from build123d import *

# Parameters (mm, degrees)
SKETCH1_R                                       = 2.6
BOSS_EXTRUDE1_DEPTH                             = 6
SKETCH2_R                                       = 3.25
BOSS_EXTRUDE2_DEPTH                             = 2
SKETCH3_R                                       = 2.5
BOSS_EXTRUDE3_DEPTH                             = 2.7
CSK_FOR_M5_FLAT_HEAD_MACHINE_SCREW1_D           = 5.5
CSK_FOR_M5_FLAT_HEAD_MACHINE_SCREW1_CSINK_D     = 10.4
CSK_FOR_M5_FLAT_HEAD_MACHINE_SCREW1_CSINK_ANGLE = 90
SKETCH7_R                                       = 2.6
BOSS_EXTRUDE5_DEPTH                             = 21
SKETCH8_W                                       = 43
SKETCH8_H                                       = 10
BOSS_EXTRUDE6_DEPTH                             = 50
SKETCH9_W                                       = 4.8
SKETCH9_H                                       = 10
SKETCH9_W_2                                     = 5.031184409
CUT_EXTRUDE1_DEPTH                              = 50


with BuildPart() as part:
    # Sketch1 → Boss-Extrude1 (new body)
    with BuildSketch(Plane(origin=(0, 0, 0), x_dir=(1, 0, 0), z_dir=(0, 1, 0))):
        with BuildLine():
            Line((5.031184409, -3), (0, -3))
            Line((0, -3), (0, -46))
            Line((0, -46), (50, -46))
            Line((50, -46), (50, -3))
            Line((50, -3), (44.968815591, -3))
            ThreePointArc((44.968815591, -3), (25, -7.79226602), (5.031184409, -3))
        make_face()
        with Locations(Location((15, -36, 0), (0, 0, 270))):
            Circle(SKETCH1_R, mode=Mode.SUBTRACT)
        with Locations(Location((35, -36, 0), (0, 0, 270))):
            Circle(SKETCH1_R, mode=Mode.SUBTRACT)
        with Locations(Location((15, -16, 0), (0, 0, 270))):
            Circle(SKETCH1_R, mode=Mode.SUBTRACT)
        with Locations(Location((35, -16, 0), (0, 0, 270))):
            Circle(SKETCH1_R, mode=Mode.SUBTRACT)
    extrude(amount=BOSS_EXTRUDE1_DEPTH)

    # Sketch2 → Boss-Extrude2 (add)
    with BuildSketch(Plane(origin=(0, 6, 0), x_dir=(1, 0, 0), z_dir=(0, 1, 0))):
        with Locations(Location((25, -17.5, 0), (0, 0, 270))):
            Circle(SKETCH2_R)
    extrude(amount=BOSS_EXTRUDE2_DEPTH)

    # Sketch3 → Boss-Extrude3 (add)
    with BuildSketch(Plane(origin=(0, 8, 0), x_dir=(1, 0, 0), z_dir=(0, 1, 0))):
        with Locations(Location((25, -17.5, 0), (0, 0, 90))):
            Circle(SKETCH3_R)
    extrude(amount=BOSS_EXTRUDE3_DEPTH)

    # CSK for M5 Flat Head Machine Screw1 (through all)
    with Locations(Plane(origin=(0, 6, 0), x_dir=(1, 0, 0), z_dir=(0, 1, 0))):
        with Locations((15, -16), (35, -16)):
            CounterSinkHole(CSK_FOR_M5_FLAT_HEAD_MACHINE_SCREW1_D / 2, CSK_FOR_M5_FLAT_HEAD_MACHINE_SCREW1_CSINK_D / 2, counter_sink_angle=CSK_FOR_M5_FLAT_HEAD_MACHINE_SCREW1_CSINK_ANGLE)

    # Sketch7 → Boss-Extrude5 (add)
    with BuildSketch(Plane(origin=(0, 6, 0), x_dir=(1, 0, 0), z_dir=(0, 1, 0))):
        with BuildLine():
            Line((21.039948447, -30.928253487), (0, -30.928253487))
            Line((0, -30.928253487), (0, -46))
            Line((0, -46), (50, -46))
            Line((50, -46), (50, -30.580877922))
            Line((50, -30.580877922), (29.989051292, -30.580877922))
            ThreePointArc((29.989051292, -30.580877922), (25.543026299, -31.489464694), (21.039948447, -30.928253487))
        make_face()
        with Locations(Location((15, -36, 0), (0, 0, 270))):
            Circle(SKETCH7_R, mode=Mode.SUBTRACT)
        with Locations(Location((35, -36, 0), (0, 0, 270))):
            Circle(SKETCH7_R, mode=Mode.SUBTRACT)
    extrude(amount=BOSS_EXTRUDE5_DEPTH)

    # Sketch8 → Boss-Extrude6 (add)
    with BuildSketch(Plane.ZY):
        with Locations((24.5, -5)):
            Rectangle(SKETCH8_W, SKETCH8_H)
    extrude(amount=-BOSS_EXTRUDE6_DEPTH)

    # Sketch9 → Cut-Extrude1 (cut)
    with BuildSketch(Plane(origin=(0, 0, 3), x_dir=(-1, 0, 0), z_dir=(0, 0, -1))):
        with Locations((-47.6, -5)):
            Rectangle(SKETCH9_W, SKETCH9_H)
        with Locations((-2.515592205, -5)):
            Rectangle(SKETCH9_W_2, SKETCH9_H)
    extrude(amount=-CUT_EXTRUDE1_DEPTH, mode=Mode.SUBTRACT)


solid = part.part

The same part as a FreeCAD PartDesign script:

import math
import FreeCAD as App
import Part
import Sketcher


def add_polygon(sketch, points):
    """Adds a closed chain of lines whose ends are joined by coincident constraints."""
    first, n = sketch.GeometryCount, len(points)
    for a, b in zip(points, points[1:] + points[:1]):
        sketch.addGeometry(Part.LineSegment(App.Vector(*a, 0), App.Vector(*b, 0)), False)
    for i in range(n):
        sketch.addConstraint(Sketcher.Constraint("Coincident", first + i, 2, first + (i + 1) % n, 1))

doc = App.newDocument("Part")
body = doc.addObject("PartDesign::Body", "Body")

# Sketch on XZ plane
sketch1 = body.newObject("Sketcher::SketchObject", "Sketch")
sketch1.AttachmentSupport = (doc.getObject("XZ_Plane"), [""])
sketch1.MapMode = "FlatFace"
sketch1.addGeometry([
    Part.LineSegment(App.Vector(5.031184, 3, 0), App.Vector(0, 3, 0)),  # 0
    Part.LineSegment(App.Vector(0, 3, 0), App.Vector(0, 46, 0)),  # 1
    Part.LineSegment(App.Vector(0, 46, 0), App.Vector(50, 46, 0)),  # 2
    Part.LineSegment(App.Vector(50, 46, 0), App.Vector(50, 3, 0)),  # 3
    Part.LineSegment(App.Vector(50, 3, 0), App.Vector(44.968816, 3, 0)),  # 4
    Part.ArcOfCircle(Part.Circle(App.Vector(25, -36.207734, 0), App.Vector(0, 0, 1), 44), math.radians(63.009888), math.radians(116.990112)),  # 5
    Part.Circle(App.Vector(15, 36, 0), App.Vector(0, 0, 1), 2.6),  # 6
    Part.Circle(App.Vector(35, 36, 0), App.Vector(0, 0, 1), 2.6),  # 7
    Part.Circle(App.Vector(15, 16, 0), App.Vector(0, 0, 1), 2.6),  # 8
    Part.Circle(App.Vector(35, 16, 0), App.Vector(0, 0, 1), 2.6),  # 9
], False)
sketch1.addConstraint([
    Sketcher.Constraint("Coincident", 0, 2, 1, 1),
    Sketcher.Constraint("Coincident", 1, 2, 2, 1),
    Sketcher.Constraint("Coincident", 2, 2, 3, 1),
    Sketcher.Constraint("Coincident", 3, 2, 4, 1),
    Sketcher.Constraint("Coincident", 4, 2, 5, 1),
    Sketcher.Constraint("Coincident", 5, 2, 0, 1),
    Sketcher.Constraint("Horizontal", 0),
    Sketcher.Constraint("Vertical", 1),
    Sketcher.Constraint("Horizontal", 2),
    Sketcher.Constraint("Vertical", 3),
    Sketcher.Constraint("Horizontal", 4),
    Sketcher.Constraint("Equal", 6, 7),
    Sketcher.Constraint("Equal", 7, 8),
    Sketcher.Constraint("Equal", 8, 9),
    Sketcher.Constraint("PointOnObject", 0, 2, -2),
    Sketcher.Constraint("Horizontal", 6, 3, 7, 3),
    Sketcher.Constraint("Horizontal", 8, 3, 9, 3),
    Sketcher.Constraint("Horizontal", 0, 2, 3, 2),
    Sketcher.Constraint("Vertical", 6, 3, 8, 3),
    Sketcher.Constraint("Vertical", 7, 3, 9, 3),
    Sketcher.Constraint("Equal", 0, 4),
    Sketcher.Constraint("Radius", 5, 44.0),
    Sketcher.Constraint("Diameter", 6, 5.2),
    Sketcher.Constraint("DistanceX", 2, 1, 2, 2, 50.0),
    Sketcher.Constraint("DistanceY", 1, 1, 1, 2, 43.0),
    Sketcher.Constraint("DistanceX", -1, 1, 6, 3, 15.0),
    Sketcher.Constraint("DistanceY", -1, 1, 6, 3, 36.0),
    Sketcher.Constraint("DistanceX", -1, 1, 7, 3, 35.0),
    Sketcher.Constraint("DistanceY", -1, 1, 8, 3, 16.0),
    Sketcher.Constraint("DistanceY", -1, 1, 0, 2, 3.0),
    Sketcher.Constraint("DistanceX", 0, 2, 0, 1, 5.031184),
])
pad1 = body.newObject("PartDesign::Pad", "Pad")
pad1.Profile = sketch1
pad1.Length = 6
pad1.Reversed = True

# Sketch on XZ plane
sketch2 = body.newObject("Sketcher::SketchObject", "Sketch001")
sketch2.AttachmentSupport = (doc.getObject("XZ_Plane"), [""])
sketch2.MapMode = "FlatFace"
sketch2.AttachmentOffset = App.Placement(App.Vector(0, 0, -6), App.Rotation())
sketch2.addGeometry(Part.Circle(App.Vector(25, 17.5, 0), App.Vector(0, 0, 1), 3.25), False)
sketch2.addConstraint([
    Sketcher.Constraint("Diameter", 0, 6.5),
    Sketcher.Constraint("DistanceX", -1, 1, 0, 3, 25.0),
    Sketcher.Constraint("DistanceY", -1, 1, 0, 3, 17.5),
])
pad2 = body.newObject("PartDesign::Pad", "Pad001")
pad2.Profile = sketch2
pad2.Length = 2
pad2.Reversed = True

# Sketch on XZ plane
sketch3 = body.newObject("Sketcher::SketchObject", "Sketch002")
sketch3.AttachmentSupport = (doc.getObject("XZ_Plane"), [""])
sketch3.MapMode = "FlatFace"
sketch3.AttachmentOffset = App.Placement(App.Vector(0, 0, -8), App.Rotation())
sketch3.addGeometry(Part.Circle(App.Vector(25, 17.5, 0), App.Vector(0, 0, 1), 2.5), False)
sketch3.addConstraint([
    Sketcher.Constraint("Diameter", 0, 5.0),
    Sketcher.Constraint("DistanceX", -1, 1, 0, 3, 25.0),
    Sketcher.Constraint("DistanceY", -1, 1, 0, 3, 17.5),
])
pad3 = body.newObject("PartDesign::Pad", "Pad002")
pad3.Profile = sketch3
pad3.Length = 2.7
pad3.Reversed = True

# Sketch on XZ plane
sketch4 = body.newObject("Sketcher::SketchObject", "Sketch003")
sketch4.AttachmentSupport = (doc.getObject("XZ_Plane"), [""])
sketch4.MapMode = "FlatFace"
sketch4.AttachmentOffset = App.Placement(App.Vector(0, 0, -6), App.Rotation())
sketch4.addGeometry([
    Part.Circle(App.Vector(15, 16, 0), App.Vector(0, 0, 1), 2.75),
    Part.Circle(App.Vector(35, 16, 0), App.Vector(0, 0, 1), 2.75),
], False)
sketch4.addConstraint([
    Sketcher.Constraint("Equal", 0, 1),
    Sketcher.Constraint("Horizontal", 0, 3, 1, 3),
    Sketcher.Constraint("Diameter", 0, 5.5),
    Sketcher.Constraint("DistanceX", -1, 1, 0, 3, 15.0),
    Sketcher.Constraint("DistanceY", -1, 1, 0, 3, 16.0),
    Sketcher.Constraint("DistanceX", -1, 1, 1, 3, 35.0),
])
doc.recompute()
hole = body.newObject("PartDesign::Hole", "Hole")
hole.Profile = sketch4
hole.ThreadType = "None"
hole.Diameter = 5.5
hole.DepthType = "ThroughAll"
hole.HoleCutType = "Countersink"
hole.HoleCutDiameter = 10.4
hole.HoleCutCountersinkAngle = 90
hole.Reversed = True

# Sketch on XZ plane
sketch5 = body.newObject("Sketcher::SketchObject", "Sketch004")
sketch5.AttachmentSupport = (doc.getObject("XZ_Plane"), [""])
sketch5.MapMode = "FlatFace"
sketch5.AttachmentOffset = App.Placement(App.Vector(0, 0, -6), App.Rotation())
sketch5.addGeometry([
    Part.LineSegment(App.Vector(21.039948, 30.928253, 0), App.Vector(0, 30.928253, 0)),  # 0
    Part.LineSegment(App.Vector(0, 30.928253, 0), App.Vector(0, 46, 0)),  # 1
    Part.LineSegment(App.Vector(0, 46, 0), App.Vector(50, 46, 0)),  # 2
    Part.LineSegment(App.Vector(50, 46, 0), App.Vector(50, 30.580878, 0)),  # 3
    Part.LineSegment(App.Vector(50, 30.580878, 0), App.Vector(29.989051, 30.580878, 0)),  # 4
    Part.ArcOfCircle(Part.Circle(App.Vector(25, 17.5, 0), App.Vector(0, 0, 1), 14), math.radians(69.123132), math.radians(106.431022)),  # 5
    Part.Circle(App.Vector(15, 36, 0), App.Vector(0, 0, 1), 2.6),  # 6
    Part.Circle(App.Vector(35, 36, 0), App.Vector(0, 0, 1), 2.6),  # 7
], False)
sketch5.addConstraint([
    Sketcher.Constraint("Coincident", 0, 2, 1, 1),
    Sketcher.Constraint("Coincident", 1, 2, 2, 1),
    Sketcher.Constraint("Coincident", 2, 2, 3, 1),
    Sketcher.Constraint("Coincident", 3, 2, 4, 1),
    Sketcher.Constraint("Coincident", 4, 2, 5, 1),
    Sketcher.Constraint("Coincident", 5, 2, 0, 1),
    Sketcher.Constraint("Horizontal", 0),
    Sketcher.Constraint("Vertical", 1),
    Sketcher.Constraint("Horizontal", 2),
    Sketcher.Constraint("Vertical", 3),
    Sketcher.Constraint("Horizontal", 4),
    Sketcher.Constraint("Equal", 6, 7),
    Sketcher.Constraint("PointOnObject", 0, 2, -2),
    Sketcher.Constraint("Horizontal", 6, 3, 7, 3),
    Sketcher.Constraint("Radius", 5, 14.0),
    Sketcher.Constraint("Diameter", 6, 5.2),
    Sketcher.Constraint("DistanceX", 2, 1, 2, 2, 50.0),
    Sketcher.Constraint("DistanceX", -1, 1, 5, 3, 25.0),
    Sketcher.Constraint("DistanceX", -1, 1, 6, 3, 15.0),
    Sketcher.Constraint("DistanceY", -1, 1, 6, 3, 36.0),
    Sketcher.Constraint("DistanceX", -1, 1, 7, 3, 35.0),
    Sketcher.Constraint("DistanceY", -1, 1, 1, 2, 46.0),
    Sketcher.Constraint("DistanceY", -1, 1, 5, 3, 17.5),
    Sketcher.Constraint("DistanceX", 0, 2, 0, 1, 21.039948),
    Sketcher.Constraint("DistanceX", 4, 2, 4, 1, 20.010949),
])
pad4 = body.newObject("PartDesign::Pad", "Pad003")
pad4.Profile = sketch5
pad4.Length = 21
pad4.Reversed = True

# Sketch on YZ plane
sketch6 = body.newObject("Sketcher::SketchObject", "Sketch005")
sketch6.AttachmentSupport = (doc.getObject("YZ_Plane"), [""])
sketch6.MapMode = "FlatFace"
add_polygon(sketch6, [(0, 3), (-10, 3), (-10, 46), (0, 46)])  # lines 0-3
sketch6.addConstraint([
    Sketcher.Constraint("Horizontal", 0),
    Sketcher.Constraint("Vertical", 1),
    Sketcher.Constraint("Horizontal", 2),
    Sketcher.Constraint("Vertical", 3),
    Sketcher.Constraint("PointOnObject", 2, 2, -2),
    Sketcher.Constraint("DistanceX", 0, 2, 0, 1, 10.0),
    Sketcher.Constraint("DistanceY", 1, 1, 1, 2, 43.0),
    Sketcher.Constraint("DistanceY", -1, 1, 0, 2, 3.0),
])
pad5 = body.newObject("PartDesign::Pad", "Pad004")
pad5.Profile = sketch6
pad5.Length = 50

# Sketch on XY plane
sketch7 = body.newObject("Sketcher::SketchObject", "Sketch006")
sketch7.AttachmentSupport = (doc.getObject("XY_Plane"), [""])
sketch7.MapMode = "FlatFace"
sketch7.AttachmentOffset = App.Placement(App.Vector(0, 0, 3), App.Rotation())
add_polygon(sketch7, [(50, 0), (50, -10), (45.2, -10), (45.2, 0)])  # lines 0-3
add_polygon(sketch7, [(5.031184, 0), (5.031184, -10), (0, -10), (0, 0)])  # lines 4-7
sketch7.addConstraint([
    Sketcher.Constraint("Vertical", 0),
    Sketcher.Constraint("Horizontal", 1),
    Sketcher.Constraint("Vertical", 2),
    Sketcher.Constraint("Horizontal", 3),
    Sketcher.Constraint("Vertical", 4),
    Sketcher.Constraint("Horizontal", 5),
    Sketcher.Constraint("Vertical", 6),
    Sketcher.Constraint("Horizontal", 7),
    Sketcher.Constraint("Coincident", 6, 2, -1, 1),
    Sketcher.Constraint("PointOnObject", 2, 2, -1),
    Sketcher.Constraint("Horizontal", 1, 2, 4, 2),
    Sketcher.Constraint("DistanceY", 0, 2, 0, 1, 10.0),
    Sketcher.Constraint("DistanceX", 1, 2, 1, 1, 4.8),
    Sketcher.Constraint("DistanceX", -1, 1, 0, 2, 50.0),
    Sketcher.Constraint("DistanceX", 5, 2, 5, 1, 5.031184),
])
pocket1 = body.newObject("PartDesign::Pocket", "Pocket")
pocket1.Profile = sketch7
pocket1.Length = 50
pocket1.Reversed = True

doc.recompute()
